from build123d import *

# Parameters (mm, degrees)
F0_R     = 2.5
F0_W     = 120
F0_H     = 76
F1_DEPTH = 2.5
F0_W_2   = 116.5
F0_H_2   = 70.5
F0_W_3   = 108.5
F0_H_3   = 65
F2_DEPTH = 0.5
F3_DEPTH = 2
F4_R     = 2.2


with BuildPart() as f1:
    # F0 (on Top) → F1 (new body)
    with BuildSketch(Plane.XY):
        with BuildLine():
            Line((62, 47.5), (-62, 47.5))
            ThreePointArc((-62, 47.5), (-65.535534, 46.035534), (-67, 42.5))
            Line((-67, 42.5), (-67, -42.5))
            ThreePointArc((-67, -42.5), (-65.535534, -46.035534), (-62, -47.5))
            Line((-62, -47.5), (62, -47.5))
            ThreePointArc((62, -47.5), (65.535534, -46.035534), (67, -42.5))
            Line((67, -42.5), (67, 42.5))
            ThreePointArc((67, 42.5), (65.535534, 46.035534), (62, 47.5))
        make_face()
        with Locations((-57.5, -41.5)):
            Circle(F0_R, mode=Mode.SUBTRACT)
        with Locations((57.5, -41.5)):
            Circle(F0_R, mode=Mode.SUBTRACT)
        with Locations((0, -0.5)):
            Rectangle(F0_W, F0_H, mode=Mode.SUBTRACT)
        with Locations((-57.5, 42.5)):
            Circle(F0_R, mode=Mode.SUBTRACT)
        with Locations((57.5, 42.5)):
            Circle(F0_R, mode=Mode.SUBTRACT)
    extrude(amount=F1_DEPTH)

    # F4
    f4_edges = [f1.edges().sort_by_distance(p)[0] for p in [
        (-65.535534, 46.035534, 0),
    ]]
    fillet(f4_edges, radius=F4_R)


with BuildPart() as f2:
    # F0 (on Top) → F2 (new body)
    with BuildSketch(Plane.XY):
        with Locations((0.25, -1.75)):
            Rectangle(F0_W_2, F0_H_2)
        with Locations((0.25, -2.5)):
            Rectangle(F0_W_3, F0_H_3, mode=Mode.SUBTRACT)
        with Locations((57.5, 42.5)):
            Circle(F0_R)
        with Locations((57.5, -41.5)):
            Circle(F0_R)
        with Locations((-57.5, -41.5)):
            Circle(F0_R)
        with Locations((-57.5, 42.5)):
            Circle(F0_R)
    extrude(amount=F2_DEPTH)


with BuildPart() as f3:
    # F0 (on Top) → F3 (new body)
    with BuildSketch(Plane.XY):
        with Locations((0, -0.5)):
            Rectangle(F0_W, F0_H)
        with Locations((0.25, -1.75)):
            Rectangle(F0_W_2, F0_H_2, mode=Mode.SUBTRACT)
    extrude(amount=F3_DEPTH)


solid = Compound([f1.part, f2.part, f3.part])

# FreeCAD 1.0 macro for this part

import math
import FreeCAD as App
import Part
import Sketcher

V = App.Vector
Q = App.Units.Quantity


def edges_at(feature, points):
    """Names of the edges that pass closest to the given points."""
    edges = feature.Shape.Edges
    near = lambda p: min(range(len(edges)), key=lambda i: edges[i].distToShape(Part.Vertex(*p))[0])
    return sorted({f"Edge{near(p) + 1}" for p in points})


def add_polygon(sketch, points):
    """Adds a closed chain of lines whose ends are joined by coincident constraints."""
    first, n = sketch.GeometryCount, len(points)
    for a, b in zip(points, points[1:] + points[:1]):
        sketch.addGeometry(Part.LineSegment(App.Vector(*a, 0), App.Vector(*b, 0)), False)
    for i in range(n):
        sketch.addConstraint(Sketcher.Constraint("Coincident", first + i, 2, first + (i + 1) % n, 1))

doc = App.newDocument("Part")
body = doc.addObject("PartDesign::Body", "Body")

# Sketch on XY plane
sketch1 = body.newObject("Sketcher::SketchObject", "Sketch")
sketch1.AttachmentSupport = (doc.getObject("XY_Plane"), [""])
sketch1.MapMode = "FlatFace"
sketch1.addGeometry(Part.LineSegment(V(62, 47.5, 0), V(-62, 47.5, 0)), False)  # 0
sketch1.addGeometry(Part.ArcOfCircle(Part.Circle(V(-62, 42.5, 0), V(0, 0, 1), 5), math.radians(90), math.radians(180)), False)  # 1
sketch1.addGeometry(Part.LineSegment(V(-67, 42.5, 0), V(-67, -42.5, 0)), False)  # 2
sketch1.addGeometry(Part.ArcOfCircle(Part.Circle(V(-62, -42.5, 0), V(0, 0, 1), 5), math.radians(180), math.radians(270)), False)  # 3
sketch1.addGeometry(Part.LineSegment(V(-62, -47.5, 0), V(62, -47.5, 0)), False)  # 4
sketch1.addGeometry(Part.ArcOfCircle(Part.Circle(V(62, -42.5, 0), V(0, 0, 1), 5), math.radians(-90), math.radians(0)), False)  # 5
sketch1.addGeometry(Part.LineSegment(V(67, -42.5, 0), V(67, 42.5, 0)), False)  # 6
sketch1.addGeometry(Part.ArcOfCircle(Part.Circle(V(62, 42.5, 0), V(0, 0, 1), 5), math.radians(0), math.radians(90)), False)  # 7
sketch1.addGeometry(Part.Circle(V(-57.5, -41.5, 0), V(0, 0, 1), 2.5), False)  # 8
sketch1.addGeometry(Part.Circle(V(57.5, -41.5, 0), V(0, 0, 1), 2.5), False)  # 9
add_polygon(sketch1, [(60, -38.5), (-60, -38.5), (-60, 37.5), (60, 37.5)])  # lines 10-13
sketch1.addGeometry(Part.Circle(V(-57.5, 42.5, 0), V(0, 0, 1), 2.5), False)  # 14
sketch1.addGeometry(Part.Circle(V(57.5, 42.5, 0), V(0, 0, 1), 2.5), False)  # 15
sketch1.addConstraint([
    Sketcher.Constraint("Tangent", 0, 2, 1, 1),
    Sketcher.Constraint("Tangent", 1, 2, 2, 1),
    Sketcher.Constraint("Tangent", 2, 2, 3, 1),
    Sketcher.Constraint("Tangent", 3, 2, 4, 1),
    Sketcher.Constraint("Tangent", 4, 2, 5, 1),
    Sketcher.Constraint("Tangent", 5, 2, 6, 1),
    Sketcher.Constraint("Tangent", 6, 2, 7, 1),
    Sketcher.Constraint("Tangent", 7, 2, 0, 1),
    Sketcher.Constraint("Horizontal", 0),
    Sketcher.Constraint("Vertical", 2),
    Sketcher.Constraint("Horizontal", 4),
    Sketcher.Constraint("Vertical", 6),
    Sketcher.Constraint("Horizontal", 10),
    Sketcher.Constraint("Vertical", 11),
    Sketcher.Constraint("Horizontal", 12),
    Sketcher.Constraint("Vertical", 13),
    Sketcher.Constraint("Equal", 1, 3),
    Sketcher.Constraint("Equal", 3, 5),
    Sketcher.Constraint("Equal", 5, 7),
    Sketcher.Constraint("Equal", 8, 9),
    Sketcher.Constraint("Equal", 9, 14),
    Sketcher.Constraint("Equal", 14, 15),
    Sketcher.Constraint("Symmetric", 1, 3, 5, 3, -1, 1),
    Sketcher.Constraint("Symmetric", 8, 3, 9, 3, -2),
    Sketcher.Constraint("Symmetric", 14, 3, 15, 3, -2),
    Sketcher.Constraint("Horizontal", 7, 3, 14, 3),
    Sketcher.Constraint("Vertical", 8, 3, 14, 3),
    Sketcher.Constraint("Diameter", 8, Q("5 mm")),
    Sketcher.Constraint("Radius", 1, Q("5 mm")),
    Sketcher.Constraint("DistanceX", 0, 2, 0, 1, Q("124 mm")),
    Sketcher.Constraint("DistanceX", 10, 2, 10, 1, Q("120 mm")),
    Sketcher.Constraint("DistanceY", 2, 2, 2, 1, Q("85 mm")),
    Sketcher.Constraint("DistanceY", 11, 1, 11, 2, Q("76 mm")),
    Sketcher.Constraint("DistanceX", 10, 2, -1, 1, Q("60 mm")),
    Sketcher.Constraint("DistanceY", 3, 3, 8, 3, Q("1 mm")),
    Sketcher.Constraint("DistanceX", 8, 3, 9, 3, Q("115 mm")),
    Sketcher.Constraint("DistanceY", 8, 3, 10, 2, Q("3 mm")),
])
pad1 = body.newObject("PartDesign::Pad", "Pad")
pad1.Profile = sketch1
pad1.Length = 2.5
doc.recompute()

fillet = body.newObject("PartDesign::Fillet", "Fillet")
fillet.Base = (pad1, edges_at(pad1, [(-65.536, 46.036, 0)]))
fillet.Radius = 2.2
body2 = doc.addObject("PartDesign::Body", "Body001")
body2.AllowCompound = True

# Sketch on XY plane
sketch2 = body2.newObject("Sketcher::SketchObject", "Sketch001")
sketch2.AttachmentSupport = (doc.getObject("XY_Plane001"), [""])
sketch2.MapMode = "FlatFace"
add_polygon(sketch2, [(-58, 33.5), (-58, -37), (58.5, -37), (58.5, 33.5)])  # lines 0-3
add_polygon(sketch2, [(54.5, -35), (-54, -35), (-54, 30), (54.5, 30)])  # lines 4-7
sketch2.addGeometry(Part.Circle(V(57.5, 42.5, 0), V(0, 0, 1), 2.5), False)  # 8
sketch2.addGeometry(Part.Circle(V(57.5, -41.5, 0), V(0, 0, 1), 2.5), False)  # 9
sketch2.addGeometry(Part.Circle(V(-57.5, -41.5, 0), V(0, 0, 1), 2.5), False)  # 10
sketch2.addGeometry(Part.Circle(V(-57.5, 42.5, 0), V(0, 0, 1), 2.5), False)  # 11
sketch2.addConstraint([
    Sketcher.Constraint("Vertical", 0),
    Sketcher.Constraint("Horizontal", 1),
    Sketcher.Constraint("Vertical", 2),
    Sketcher.Constraint("Horizontal", 3),
    Sketcher.Constraint("Horizontal", 4),
    Sketcher.Constraint("Vertical", 5),
    Sketcher.Constraint("Horizontal", 6),
    Sketcher.Constraint("Vertical", 7),
    Sketcher.Constraint("Equal", 8, 9),
    Sketcher.Constraint("Equal", 9, 10),
    Sketcher.Constraint("Equal", 10, 11),
    Sketcher.Constraint("Symmetric", 9, 3, 10, 3, -2),
    Sketcher.Constraint("Symmetric", 8, 3, 11, 3, -2),
    Sketcher.Constraint("Vertical", 8, 3, 9, 3),
    Sketcher.Constraint("Diameter", 8, Q("5 mm")),
    Sketcher.Constraint("DistanceY", 5, 1, 5, 2, Q("65 mm")),
    Sketcher.Constraint("DistanceX", 1, 1, 1, 2, Q("116.5 mm")),
    Sketcher.Constraint("DistanceX", 4, 2, 4, 1, Q("108.5 mm")),
    Sketcher.Constraint("DistanceY", 0, 2, 0, 1, Q("70.5 mm")),
    Sketcher.Constraint("DistanceX", 0, 2, -1, 1, Q("58 mm")),
    Sketcher.Constraint("DistanceY", 0, 2, -1, 1, Q("37 mm")),
    Sketcher.Constraint("DistanceX", 4, 2, -1, 1, Q("54 mm")),
    Sketcher.Constraint("DistanceY", 4, 2, -1, 1, Q("35 mm")),
    Sketcher.Constraint("DistanceY", 9, 3, 8, 3, Q("84 mm")),
    Sketcher.Constraint("DistanceX", 10, 3, 9, 3, Q("115 mm")),
    Sketcher.Constraint("DistanceY", 2, 2, 8, 3, Q("9 mm")),
])
pad2 = body2.newObject("PartDesign::Pad", "Pad001")
pad2.Profile = sketch2
pad2.Length = 0.5
body3 = doc.addObject("PartDesign::Body", "Body002")

# Sketch on XY plane
sketch3 = body3.newObject("Sketcher::SketchObject", "Sketch002")
sketch3.AttachmentSupport = (doc.getObject("XY_Plane002"), [""])
sketch3.MapMode = "FlatFace"
add_polygon(sketch3, [(-60, 38), (-60, -38), (60, -38), (60, 38)])  # lines 0-3
add_polygon(sketch3, [(58, -37), (-58, -37), (-58, 34), (58, 34)])  # lines 4-7
sketch3.addConstraint([
    Sketcher.Constraint("Vertical", 0),
    Sketcher.Constraint("Horizontal", 1),
    Sketcher.Constraint("Vertical", 2),
    Sketcher.Constraint("Horizontal", 3),
    Sketcher.Constraint("Horizontal", 4),
    Sketcher.Constraint("Vertical", 5),
    Sketcher.Constraint("Horizontal", 6),
    Sketcher.Constraint("Vertical", 7),
    Sketcher.Constraint("DistanceX", 1, 1, 1, 2, Q("120 mm")),
    Sketcher.Constraint("DistanceY", 0, 2, 0, 1, Q("76 mm")),
    Sketcher.Constraint("DistanceX", 4, 2, 4, 1, Q("116.5 mm")),
    Sketcher.Constraint("DistanceY", 5, 1, 5, 2, Q("70.5 mm")),
    Sketcher.Constraint("DistanceX", 0, 2, -1, 1, Q("60 mm")),
    Sketcher.Constraint("DistanceX", 4, 2, -1, 1, Q("58 mm")),
    Sketcher.Constraint("DistanceY", 4, 2, -1, 1, Q("37 mm")),
    Sketcher.Constraint("DistanceY", 5, 2, 3, 2, Q("4 mm")),
])
pad3 = body3.newObject("PartDesign::Pad", "Pad002")
pad3.Profile = sketch3
pad3.Length = 2

doc.recompute()
